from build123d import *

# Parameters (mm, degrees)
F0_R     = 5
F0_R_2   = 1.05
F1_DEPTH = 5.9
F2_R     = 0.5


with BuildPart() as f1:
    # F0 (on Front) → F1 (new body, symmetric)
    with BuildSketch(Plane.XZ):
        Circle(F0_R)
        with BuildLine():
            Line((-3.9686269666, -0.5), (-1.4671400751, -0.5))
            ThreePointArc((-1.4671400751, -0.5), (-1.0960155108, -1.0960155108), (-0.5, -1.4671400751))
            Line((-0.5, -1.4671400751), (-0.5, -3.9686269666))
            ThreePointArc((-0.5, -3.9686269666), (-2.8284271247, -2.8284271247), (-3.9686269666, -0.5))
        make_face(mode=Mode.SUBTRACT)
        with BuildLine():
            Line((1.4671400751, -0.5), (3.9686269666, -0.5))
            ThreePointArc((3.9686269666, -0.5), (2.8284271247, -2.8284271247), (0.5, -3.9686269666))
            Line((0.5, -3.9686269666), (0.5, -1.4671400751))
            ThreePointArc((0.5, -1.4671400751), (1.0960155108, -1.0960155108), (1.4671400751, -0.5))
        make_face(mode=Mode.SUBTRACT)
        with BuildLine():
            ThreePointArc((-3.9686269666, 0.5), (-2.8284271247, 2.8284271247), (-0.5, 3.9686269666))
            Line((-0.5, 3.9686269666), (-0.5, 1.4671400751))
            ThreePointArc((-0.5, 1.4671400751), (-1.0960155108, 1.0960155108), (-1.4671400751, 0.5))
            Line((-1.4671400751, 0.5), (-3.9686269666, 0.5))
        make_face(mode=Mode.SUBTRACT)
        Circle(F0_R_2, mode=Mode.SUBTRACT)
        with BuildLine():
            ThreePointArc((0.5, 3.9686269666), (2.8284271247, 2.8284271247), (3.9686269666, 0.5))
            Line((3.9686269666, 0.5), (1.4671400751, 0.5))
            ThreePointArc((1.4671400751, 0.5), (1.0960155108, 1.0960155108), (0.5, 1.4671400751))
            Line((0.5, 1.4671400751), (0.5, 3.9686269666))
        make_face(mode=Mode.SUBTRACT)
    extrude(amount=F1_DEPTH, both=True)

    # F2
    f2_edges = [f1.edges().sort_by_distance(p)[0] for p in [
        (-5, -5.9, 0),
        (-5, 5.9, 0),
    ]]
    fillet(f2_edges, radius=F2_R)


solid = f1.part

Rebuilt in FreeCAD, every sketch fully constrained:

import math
import FreeCAD as App
import Part
import Sketcher
from FreeCAD import Vector
Q = App.Units.Quantity


def edges_at(feature, points):
    """Names of the edges that pass closest to the given points."""
    edges = feature.Shape.Edges
    near = lambda p: min(range(len(edges)), key=lambda i: edges[i].distToShape(Part.Vertex(*p))[0])
    return sorted({f"Edge{near(p) + 1}" for p in points})

doc = App.newDocument("Part")
params = doc.addObject("Spreadsheet::Sheet", "Params")
for row, (alias, value) in enumerate([
    ("sketch1_diameter", "10 mm"),
    ("sketch1_radius", "4 mm"),
    ("sketch1_diameter2", "2.1 mm"),
    ("sketch1_radius2", "1.55 mm"),
    ("pad1_length", "11.8 mm"),
    ("fillet_radius", "0.5 mm"),
], start=1):
    params.set(f"A{row}", alias)
    params.set(f"B{row}", "=" + value)
    params.setAlias(f"B{row}", alias)

body = doc.addObject("PartDesign::Body", "Body")

# Sketch on XZ plane
sketch1 = doc.addObject("Sketcher::SketchObject", "Sketch")
body.addObject(sketch1)
sketch1.AttachmentSupport = (doc.XZ_Plane, [""])
sketch1.MapMode = "FlatFace"
sketch1.addGeometry(Part.Circle(Vector(0, 0, 0), Vector(0, 0, 1), 5), False)
sketch1.addGeometry(Part.ArcOfCircle(Part.Circle(Vector(0, 0, 0), Vector(0, 0, 1), 4), math.radians(-173), math.radians(-97)), False)
sketch1.addGeometry(Part.LineSegment(Vector(-4, -0.5, 0), Vector(-1.5, -0.5, 0)), False)
sketch1.addGeometry(Part.ArcOfCircle(Part.Circle(Vector(0, 0, 0), Vector(0, 0, 1), 1.6), math.radians(-161), math.radians(-109)), False)
sketch1.addGeometry(Part.LineSegment(Vector(-0.5, -1.5, 0), Vector(-0.5, -4, 0)), False)
sketch1.addGeometry(Part.Circle(Vector(0, 0, 0), Vector(0, 0, 1), 1.1), False)
sketch1.addGeometry(Part.ArcOfCircle(Part.Circle(Vector(0, 0, 0), Vector(0, 0, 1), 1.6), math.radians(-71), math.radians(-19)), False)
sketch1.addGeometry(Part.LineSegment(Vector(1.5, -0.5, 0), Vector(4, -0.5, 0)), False)
sketch1.addGeometry(Part.ArcOfCircle(Part.Circle(Vector(0, 0, 0), Vector(0, 0, 1), 4), math.radians(-83), math.radians(-7)), False)
sketch1.addGeometry(Part.LineSegment(Vector(0.5, -4, 0), Vector(0.5, -1.5, 0)), False)
sketch1.addGeometry(Part.LineSegment(Vector(-1.5, 0.5, 0), Vector(-4, 0.5, 0)), False)
sketch1.addGeometry(Part.ArcOfCircle(Part.Circle(Vector(0, 0, 0), Vector(0, 0, 1), 4), math.radians(97), math.radians(173)), False)
sketch1.addGeometry(Part.LineSegment(Vector(-0.5, 4, 0), Vector(-0.5, 1.5, 0)), False)
sketch1.addGeometry(Part.ArcOfCircle(Part.Circle(Vector(0, 0, 0), Vector(0, 0, 1), 1.6), math.radians(109), math.radians(161)), False)
sketch1.addGeometry(Part.LineSegment(Vector(0.5, 1.5, 0), Vector(0.5, 4, 0)), False)
sketch1.addGeometry(Part.ArcOfCircle(Part.Circle(Vector(0, 0, 0), Vector(0, 0, 1), 4), math.radians(7), math.radians(83)), False)
sketch1.addGeometry(Part.LineSegment(Vector(4, 0.5, 0), Vector(1.5, 0.5, 0)), False)
sketch1.addGeometry(Part.ArcOfCircle(Part.Circle(Vector(0, 0, 0), Vector(0, 0, 1), 1.6), math.radians(19), math.radians(71)), False)
sketch1.addConstraint(Sketcher.Constraint("Coincident", 1, 1, 2, 1))
sketch1.addConstraint(Sketcher.Constraint("Coincident", 2, 2, 3, 1))
sketch1.addConstraint(Sketcher.Constraint("Coincident", 3, 2, 4, 1))
sketch1.addConstraint(Sketcher.Constraint("Coincident", 4, 2, 1, 2))
sketch1.addConstraint(Sketcher.Constraint("Coincident", 6, 2, 7, 1))
sketch1.addConstraint(Sketcher.Constraint("Coincident", 7, 2, 8, 2))
sketch1.addConstraint(Sketcher.Constraint("Coincident", 8, 1, 9, 1))
sketch1.addConstraint(Sketcher.Constraint("Coincident", 9, 2, 6, 1))
sketch1.addConstraint(Sketcher.Constraint("Coincident", 10, 2, 11, 2))
sketch1.addConstraint(Sketcher.Constraint("Coincident", 11, 1, 12, 1))
sketch1.addConstraint(Sketcher.Constraint("Coincident", 12, 2, 13, 1))
sketch1.addConstraint(Sketcher.Constraint("Coincident", 13, 2, 10, 1))
sketch1.addConstraint(Sketcher.Constraint("Coincident", 14, 2, 15, 2))
sketch1.addConstraint(Sketcher.Constraint("Coincident", 15, 1, 16, 1))
sketch1.addConstraint(Sketcher.Constraint("Coincident", 16, 2, 17, 1))
sketch1.addConstraint(Sketcher.Constraint("Coincident", 17, 2, 14, 1))
sketch1.addConstraint(Sketcher.Constraint("Horizontal", 2))
sketch1.addConstraint(Sketcher.Constraint("Vertical", 4))
sketch1.addConstraint(Sketcher.Constraint("Horizontal", 7))
sketch1.addConstraint(Sketcher.Constraint("Vertical", 9))
sketch1.addConstraint(Sketcher.Constraint("Horizontal", 10))
sketch1.addConstraint(Sketcher.Constraint("Vertical", 12))
sketch1.addConstraint(Sketcher.Constraint("Vertical", 14))
sketch1.addConstraint(Sketcher.Constraint("Horizontal", 16))
sketch1.addConstraint(Sketcher.Constraint("Coincident", 0, 3, -1, 1))
sketch1.addConstraint(Sketcher.Constraint("Coincident", 1, 3, -1, 1))
sketch1.addConstraint(Sketcher.Constraint("Coincident", 3, 3, -1, 1))
sketch1.addConstraint(Sketcher.Constraint("Coincident", 5, 3, -1, 1))
sketch1.addConstraint(Sketcher.Constraint("Coincident", 6, 3, -1, 1))
sketch1.addConstraint(Sketcher.Constraint("Coincident", 8, 3, -1, 1))
sketch1.addConstraint(Sketcher.Constraint("Coincident", 11, 3, -1, 1))
sketch1.addConstraint(Sketcher.Constraint("Coincident", 13, 3, -1, 1))
sketch1.addConstraint(Sketcher.Constraint("Coincident", 15, 3, -1, 1))
sketch1.addConstraint(Sketcher.Constraint("Coincident", 17, 3, -1, 1))
sketch1.addConstraint(Sketcher.Constraint("Equal", 3, 6))
sketch1.addConstraint(Sketcher.Constraint("Equal", 1, 8))
sketch1.addConstraint(Sketcher.Constraint("Equal", 8, 11))
sketch1.addConstraint(Sketcher.Constraint("Equal", 6, 13))
sketch1.addConstraint(Sketcher.Constraint("Equal", 11, 15))
sketch1.addConstraint(Sketcher.Constraint("Equal", 13, 17))
sketch1.addConstraint(Sketcher.Constraint("Horizontal", 2, 2, 6, 2))
sketch1.addConstraint(Sketcher.Constraint("Horizontal", 4, 2, 8, 1))
sketch1.addConstraint(Sketcher.Constraint("Horizontal", 11, 1, 14, 2))
sketch1.addConstraint(Sketcher.Constraint("Horizontal", 13, 2, 15, 1))
sketch1.addConstraint(Sketcher.Constraint("Vertical", 1, 1, 10, 2))
sketch1.addConstraint(Sketcher.Constraint("Vertical", 4, 2, 11, 1))
sketch1.addConstraint(Sketcher.Constraint("Equal", 16, 4))
sketch1.addConstraint(Sketcher.Constraint("Diameter", 0, Q("10 mm")))
sketch1.addConstraint(Sketcher.Constraint("Radius", 1, Q("4 mm")))
sketch1.addConstraint(Sketcher.Constraint("Diameter", 5, Q("2.1 mm")))
sketch1.addConstraint(Sketcher.Constraint("Radius", 3, Q("1.55 mm")))
sketch1.addConstraint(Sketcher.Constraint("DistanceX", 4, 2, 8, 1, Q("1 mm")))
sketch1.setExpression("Constraints[47]", "Params.sketch1_diameter")
sketch1.setExpression("Constraints[48]", "Params.sketch1_radius")
sketch1.setExpression("Constraints[49]", "Params.sketch1_diameter2")
sketch1.setExpression("Constraints[50]", "Params.sketch1_radius2")
pad1 = doc.addObject("PartDesign::Pad", "Pad")
body.addObject(pad1)
pad1.Profile = sketch1
pad1.setExpression("Length", "Params.pad1_length")
pad1.Midplane = True
doc.recompute()

fillet = doc.addObject("PartDesign::Fillet", "Fillet")
body.addObject(fillet)
fillet.Base = (pad1, edges_at(pad1, [(-5, -5.9, 0), (-5, 5.9, 0)]))
fillet.setExpression("Radius", "Params.fillet_radius")

doc.recompute()
